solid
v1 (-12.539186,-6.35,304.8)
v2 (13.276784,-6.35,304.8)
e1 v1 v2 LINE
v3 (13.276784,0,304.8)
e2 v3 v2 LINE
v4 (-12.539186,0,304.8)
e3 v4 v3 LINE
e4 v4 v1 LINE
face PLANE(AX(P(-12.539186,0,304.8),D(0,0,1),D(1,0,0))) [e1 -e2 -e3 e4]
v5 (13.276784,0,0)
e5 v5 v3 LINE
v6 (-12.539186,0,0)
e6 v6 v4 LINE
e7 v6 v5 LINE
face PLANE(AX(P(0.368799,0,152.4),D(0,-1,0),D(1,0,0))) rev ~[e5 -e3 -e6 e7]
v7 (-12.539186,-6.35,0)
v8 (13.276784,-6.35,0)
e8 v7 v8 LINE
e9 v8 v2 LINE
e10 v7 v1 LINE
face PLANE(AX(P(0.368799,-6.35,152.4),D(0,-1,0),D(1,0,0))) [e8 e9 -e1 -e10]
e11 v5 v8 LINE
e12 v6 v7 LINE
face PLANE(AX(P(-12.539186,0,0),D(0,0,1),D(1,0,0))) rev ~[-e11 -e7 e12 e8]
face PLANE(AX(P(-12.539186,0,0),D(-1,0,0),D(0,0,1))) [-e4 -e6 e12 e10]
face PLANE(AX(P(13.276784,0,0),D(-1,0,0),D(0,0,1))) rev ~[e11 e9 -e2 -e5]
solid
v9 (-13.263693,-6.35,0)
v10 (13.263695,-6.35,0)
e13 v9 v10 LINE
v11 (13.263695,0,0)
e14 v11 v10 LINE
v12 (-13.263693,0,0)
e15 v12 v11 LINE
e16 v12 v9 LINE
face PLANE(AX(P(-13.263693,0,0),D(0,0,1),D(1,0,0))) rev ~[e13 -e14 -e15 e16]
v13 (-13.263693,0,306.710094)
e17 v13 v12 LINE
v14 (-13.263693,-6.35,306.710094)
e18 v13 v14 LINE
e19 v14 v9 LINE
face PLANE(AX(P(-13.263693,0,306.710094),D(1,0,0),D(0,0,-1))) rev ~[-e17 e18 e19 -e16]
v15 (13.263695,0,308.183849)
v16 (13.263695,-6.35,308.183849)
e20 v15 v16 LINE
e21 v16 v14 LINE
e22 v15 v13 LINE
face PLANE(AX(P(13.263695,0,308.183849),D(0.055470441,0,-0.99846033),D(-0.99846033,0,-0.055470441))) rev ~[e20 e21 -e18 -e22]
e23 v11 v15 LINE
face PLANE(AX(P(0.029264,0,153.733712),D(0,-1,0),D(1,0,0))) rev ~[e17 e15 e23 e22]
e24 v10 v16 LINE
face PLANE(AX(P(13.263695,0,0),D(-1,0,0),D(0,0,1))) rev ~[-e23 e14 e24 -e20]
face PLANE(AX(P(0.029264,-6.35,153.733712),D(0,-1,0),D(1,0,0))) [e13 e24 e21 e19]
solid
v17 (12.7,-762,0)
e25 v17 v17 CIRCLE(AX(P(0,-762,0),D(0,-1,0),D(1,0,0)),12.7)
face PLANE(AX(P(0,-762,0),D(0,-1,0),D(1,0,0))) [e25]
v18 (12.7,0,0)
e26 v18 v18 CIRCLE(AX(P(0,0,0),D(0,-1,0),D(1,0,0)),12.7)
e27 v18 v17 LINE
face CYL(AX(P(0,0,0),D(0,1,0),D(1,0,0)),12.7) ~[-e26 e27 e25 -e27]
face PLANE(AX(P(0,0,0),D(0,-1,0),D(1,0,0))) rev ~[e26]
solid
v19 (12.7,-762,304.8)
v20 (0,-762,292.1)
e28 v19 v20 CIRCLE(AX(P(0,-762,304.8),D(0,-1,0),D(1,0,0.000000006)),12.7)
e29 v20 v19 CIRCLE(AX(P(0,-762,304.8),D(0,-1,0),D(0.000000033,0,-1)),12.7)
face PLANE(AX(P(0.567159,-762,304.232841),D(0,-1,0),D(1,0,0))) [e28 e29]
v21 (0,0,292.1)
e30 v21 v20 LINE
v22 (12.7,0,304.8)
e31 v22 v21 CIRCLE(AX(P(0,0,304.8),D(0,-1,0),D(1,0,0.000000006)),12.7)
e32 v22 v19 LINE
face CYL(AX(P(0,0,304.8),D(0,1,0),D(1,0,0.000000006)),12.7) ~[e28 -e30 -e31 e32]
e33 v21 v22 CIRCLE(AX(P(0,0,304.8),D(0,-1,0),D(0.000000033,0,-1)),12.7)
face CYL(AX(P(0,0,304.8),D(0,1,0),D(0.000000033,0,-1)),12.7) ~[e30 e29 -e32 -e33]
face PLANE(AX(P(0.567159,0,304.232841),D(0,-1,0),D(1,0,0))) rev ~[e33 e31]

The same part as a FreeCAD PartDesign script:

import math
import FreeCAD as App
import Part
import Sketcher
from FreeCAD import Vector
Q = App.Units.Quantity


def add_polygon(sketch, points):
    """Adds a closed chain of lines whose ends are joined by coincident constraints."""
    first, n = sketch.GeometryCount, len(points)
    for a, b in zip(points, points[1:] + points[:1]):
        sketch.addGeometry(Part.LineSegment(App.Vector(*a, 0), App.Vector(*b, 0)), False)
    for i in range(n):
        sketch.addConstraint(Sketcher.Constraint("Coincident", first + i, 2, first + (i + 1) % n, 1))

doc = App.newDocument("Part")
body = doc.addObject("PartDesign::Body", "Body")

sketch1 = doc.addObject("Sketcher::SketchObject", "Sketch")
body.addObject(sketch1)
sketch1.AttachmentSupport = (doc.XZ_Plane, [""])
sketch1.MapMode = "FlatFace"
sketch1.addGeometry(Part.Circle(Vector(0, 0, 0), Vector(0, 0, 1), 12.7), False)
sketch1.addConstraint([
    Sketcher.Constraint("Coincident", 0, 3, -1, 1),
    Sketcher.Constraint("Diameter", 0, Q("1 in")),
])
pad1 = doc.addObject("PartDesign::Pad", "Pad")
body.addObject(pad1)
pad1.Profile = sketch1
pad1.Length = Q("30 in")
body2 = doc.addObject("PartDesign::Body", "Body001")

sketch2 = doc.addObject("Sketcher::SketchObject", "Sketch001")
body2.addObject(sketch2)
sketch2.AttachmentSupport = (doc.getObject("XZ_Plane001"), [""])
sketch2.MapMode = "FlatFace"
sketch2.addGeometry([
    Part.ArcOfCircle(Part.Circle(Vector(0, 304.8, 0), Vector(0, 0, 1), 12.7), math.radians(-89.999998), math.radians(-0.000002)),
    Part.ArcOfCircle(Part.Circle(Vector(0, 304.8, 0), Vector(0, 0, 1), 12.7), math.radians(0), math.radians(270)),
], False)
sketch2.addConstraint([
    Sketcher.Constraint("Tangent", 0, 1, 1, 2),
    Sketcher.Constraint("Coincident", 1, 1, 0, 2),
    Sketcher.Constraint("PointOnObject", 0, 3, -2),
    Sketcher.Constraint("PointOnObject", 0, 1, -2),
    Sketcher.Constraint("Horizontal", 0, 3, 1, 1),
    Sketcher.Constraint("Radius", 0, Q("0.5 in")),
    Sketcher.Constraint("DistanceY", -1, 1, 0, 3, Q("12 in")),
])
pad2 = doc.addObject("PartDesign::Pad", "Pad001")
body2.addObject(pad2)
pad2.Profile = sketch2
pad2.Length = Q("30 in")
body3 = doc.addObject("PartDesign::Body", "Body002")

sketch3 = doc.addObject("Sketcher::SketchObject", "Sketch002")
body3.addObject(sketch3)
sketch3.AttachmentSupport = (doc.getObject("XZ_Plane002"), [""])
sketch3.MapMode = "FlatFace"
add_polygon(sketch3, [(-12.539186, 304.8), (-12.539186, 0), (13.276784, 0), (13.276784, 304.8)])
sketch3.addConstraint([
    Sketcher.Constraint("Vertical", 0),
    Sketcher.Constraint("Horizontal", 1),
    Sketcher.Constraint("Vertical", 2),
    Sketcher.Constraint("Horizontal", 3),
    Sketcher.Constraint("PointOnObject", 0, 2, -1),
    Sketcher.Constraint("DistanceY", 0, 2, 0, 1, Q("12 in")),
    Sketcher.Constraint("DistanceX", 1, 1, 1, 2, 25.81597),
    Sketcher.Constraint("DistanceX", 0, 2, -1, 1, 12.539186),
])
pad3 = doc.addObject("PartDesign::Pad", "Pad002")
body3.addObject(pad3)
pad3.Profile = sketch3
pad3.Length = Q("0.25 in")
body4 = doc.addObject("PartDesign::Body", "Body003")

sketch4 = doc.addObject("Sketcher::SketchObject", "Sketch003")
body4.addObject(sketch4)
sketch4.AttachmentSupport = (doc.getObject("XZ_Plane003"), [""])
sketch4.MapMode = "FlatFace"
add_polygon(sketch4, [(13.263695, 308.183849), (-13.263693, 306.710094), (-13.263693, 0), (13.263695, 0)])
sketch4.addConstraint([
    Sketcher.Constraint("Vertical", 1),
    Sketcher.Constraint("Horizontal", 2),
    Sketcher.Constraint("Vertical", 3),
    Sketcher.Constraint("Symmetric", 1, 2, 2, 2, -1, 1),
    Sketcher.Constraint("DistanceX", 2, 1, 2, 2, 26.527388),
    Sketcher.Constraint("DistanceY", 3, 1, 3, 2, 308.183849),
    Sketcher.Constraint("DistanceY", 1, 2, 1, 1, 306.710094),
])
pad4 = doc.addObject("PartDesign::Pad", "Pad003")
body4.addObject(pad4)
pad4.Profile = sketch4
pad4.Length = Q("0.25 in")
body5 = doc.addObject("PartDesign::Body", "Body004")

sketch5 = doc.addObject("Sketcher::SketchObject", "Sketch004")
body5.addObject(sketch5)
sketch5.AttachmentSupport = (doc.getObject("XZ_Plane004"), [""])
sketch5.MapMode = "FlatFace"
sketch5.AttachmentOffset = App.Placement(Vector(0, 0, 0.25 * 25.4), App.Rotation())
add_polygon(sketch5, [(-247.386217, -295.513868), (-247.386217, 0), (-272.435516, 0), (-272.435516, -300.665438)])
sketch5.addConstraint([
    Sketcher.Constraint("Vertical", 0),
    Sketcher.Constraint("Horizontal", 1),
    Sketcher.Constraint("Vertical", 2),
    Sketcher.Constraint("PointOnObject", 0, 2, -1),
    Sketcher.Constraint("DistanceX", 1, 2, 1, 1, 25.049299),
    Sketcher.Constraint("DistanceY", 0, 1, 0, 2, 295.513868),
    Sketcher.Constraint("DistanceY", 2, 2, 2, 1, 300.665438),
    Sketcher.Constraint("DistanceX", 0, 2, -1, 1, 247.386217),
])
pad5 = doc.addObject("PartDesign::Pad", "Pad004")
body5.addObject(pad5)
pad5.Profile = sketch5
pad5.Length = Q("0.25 in")
body5.Visibility = False

doc.recompute()
